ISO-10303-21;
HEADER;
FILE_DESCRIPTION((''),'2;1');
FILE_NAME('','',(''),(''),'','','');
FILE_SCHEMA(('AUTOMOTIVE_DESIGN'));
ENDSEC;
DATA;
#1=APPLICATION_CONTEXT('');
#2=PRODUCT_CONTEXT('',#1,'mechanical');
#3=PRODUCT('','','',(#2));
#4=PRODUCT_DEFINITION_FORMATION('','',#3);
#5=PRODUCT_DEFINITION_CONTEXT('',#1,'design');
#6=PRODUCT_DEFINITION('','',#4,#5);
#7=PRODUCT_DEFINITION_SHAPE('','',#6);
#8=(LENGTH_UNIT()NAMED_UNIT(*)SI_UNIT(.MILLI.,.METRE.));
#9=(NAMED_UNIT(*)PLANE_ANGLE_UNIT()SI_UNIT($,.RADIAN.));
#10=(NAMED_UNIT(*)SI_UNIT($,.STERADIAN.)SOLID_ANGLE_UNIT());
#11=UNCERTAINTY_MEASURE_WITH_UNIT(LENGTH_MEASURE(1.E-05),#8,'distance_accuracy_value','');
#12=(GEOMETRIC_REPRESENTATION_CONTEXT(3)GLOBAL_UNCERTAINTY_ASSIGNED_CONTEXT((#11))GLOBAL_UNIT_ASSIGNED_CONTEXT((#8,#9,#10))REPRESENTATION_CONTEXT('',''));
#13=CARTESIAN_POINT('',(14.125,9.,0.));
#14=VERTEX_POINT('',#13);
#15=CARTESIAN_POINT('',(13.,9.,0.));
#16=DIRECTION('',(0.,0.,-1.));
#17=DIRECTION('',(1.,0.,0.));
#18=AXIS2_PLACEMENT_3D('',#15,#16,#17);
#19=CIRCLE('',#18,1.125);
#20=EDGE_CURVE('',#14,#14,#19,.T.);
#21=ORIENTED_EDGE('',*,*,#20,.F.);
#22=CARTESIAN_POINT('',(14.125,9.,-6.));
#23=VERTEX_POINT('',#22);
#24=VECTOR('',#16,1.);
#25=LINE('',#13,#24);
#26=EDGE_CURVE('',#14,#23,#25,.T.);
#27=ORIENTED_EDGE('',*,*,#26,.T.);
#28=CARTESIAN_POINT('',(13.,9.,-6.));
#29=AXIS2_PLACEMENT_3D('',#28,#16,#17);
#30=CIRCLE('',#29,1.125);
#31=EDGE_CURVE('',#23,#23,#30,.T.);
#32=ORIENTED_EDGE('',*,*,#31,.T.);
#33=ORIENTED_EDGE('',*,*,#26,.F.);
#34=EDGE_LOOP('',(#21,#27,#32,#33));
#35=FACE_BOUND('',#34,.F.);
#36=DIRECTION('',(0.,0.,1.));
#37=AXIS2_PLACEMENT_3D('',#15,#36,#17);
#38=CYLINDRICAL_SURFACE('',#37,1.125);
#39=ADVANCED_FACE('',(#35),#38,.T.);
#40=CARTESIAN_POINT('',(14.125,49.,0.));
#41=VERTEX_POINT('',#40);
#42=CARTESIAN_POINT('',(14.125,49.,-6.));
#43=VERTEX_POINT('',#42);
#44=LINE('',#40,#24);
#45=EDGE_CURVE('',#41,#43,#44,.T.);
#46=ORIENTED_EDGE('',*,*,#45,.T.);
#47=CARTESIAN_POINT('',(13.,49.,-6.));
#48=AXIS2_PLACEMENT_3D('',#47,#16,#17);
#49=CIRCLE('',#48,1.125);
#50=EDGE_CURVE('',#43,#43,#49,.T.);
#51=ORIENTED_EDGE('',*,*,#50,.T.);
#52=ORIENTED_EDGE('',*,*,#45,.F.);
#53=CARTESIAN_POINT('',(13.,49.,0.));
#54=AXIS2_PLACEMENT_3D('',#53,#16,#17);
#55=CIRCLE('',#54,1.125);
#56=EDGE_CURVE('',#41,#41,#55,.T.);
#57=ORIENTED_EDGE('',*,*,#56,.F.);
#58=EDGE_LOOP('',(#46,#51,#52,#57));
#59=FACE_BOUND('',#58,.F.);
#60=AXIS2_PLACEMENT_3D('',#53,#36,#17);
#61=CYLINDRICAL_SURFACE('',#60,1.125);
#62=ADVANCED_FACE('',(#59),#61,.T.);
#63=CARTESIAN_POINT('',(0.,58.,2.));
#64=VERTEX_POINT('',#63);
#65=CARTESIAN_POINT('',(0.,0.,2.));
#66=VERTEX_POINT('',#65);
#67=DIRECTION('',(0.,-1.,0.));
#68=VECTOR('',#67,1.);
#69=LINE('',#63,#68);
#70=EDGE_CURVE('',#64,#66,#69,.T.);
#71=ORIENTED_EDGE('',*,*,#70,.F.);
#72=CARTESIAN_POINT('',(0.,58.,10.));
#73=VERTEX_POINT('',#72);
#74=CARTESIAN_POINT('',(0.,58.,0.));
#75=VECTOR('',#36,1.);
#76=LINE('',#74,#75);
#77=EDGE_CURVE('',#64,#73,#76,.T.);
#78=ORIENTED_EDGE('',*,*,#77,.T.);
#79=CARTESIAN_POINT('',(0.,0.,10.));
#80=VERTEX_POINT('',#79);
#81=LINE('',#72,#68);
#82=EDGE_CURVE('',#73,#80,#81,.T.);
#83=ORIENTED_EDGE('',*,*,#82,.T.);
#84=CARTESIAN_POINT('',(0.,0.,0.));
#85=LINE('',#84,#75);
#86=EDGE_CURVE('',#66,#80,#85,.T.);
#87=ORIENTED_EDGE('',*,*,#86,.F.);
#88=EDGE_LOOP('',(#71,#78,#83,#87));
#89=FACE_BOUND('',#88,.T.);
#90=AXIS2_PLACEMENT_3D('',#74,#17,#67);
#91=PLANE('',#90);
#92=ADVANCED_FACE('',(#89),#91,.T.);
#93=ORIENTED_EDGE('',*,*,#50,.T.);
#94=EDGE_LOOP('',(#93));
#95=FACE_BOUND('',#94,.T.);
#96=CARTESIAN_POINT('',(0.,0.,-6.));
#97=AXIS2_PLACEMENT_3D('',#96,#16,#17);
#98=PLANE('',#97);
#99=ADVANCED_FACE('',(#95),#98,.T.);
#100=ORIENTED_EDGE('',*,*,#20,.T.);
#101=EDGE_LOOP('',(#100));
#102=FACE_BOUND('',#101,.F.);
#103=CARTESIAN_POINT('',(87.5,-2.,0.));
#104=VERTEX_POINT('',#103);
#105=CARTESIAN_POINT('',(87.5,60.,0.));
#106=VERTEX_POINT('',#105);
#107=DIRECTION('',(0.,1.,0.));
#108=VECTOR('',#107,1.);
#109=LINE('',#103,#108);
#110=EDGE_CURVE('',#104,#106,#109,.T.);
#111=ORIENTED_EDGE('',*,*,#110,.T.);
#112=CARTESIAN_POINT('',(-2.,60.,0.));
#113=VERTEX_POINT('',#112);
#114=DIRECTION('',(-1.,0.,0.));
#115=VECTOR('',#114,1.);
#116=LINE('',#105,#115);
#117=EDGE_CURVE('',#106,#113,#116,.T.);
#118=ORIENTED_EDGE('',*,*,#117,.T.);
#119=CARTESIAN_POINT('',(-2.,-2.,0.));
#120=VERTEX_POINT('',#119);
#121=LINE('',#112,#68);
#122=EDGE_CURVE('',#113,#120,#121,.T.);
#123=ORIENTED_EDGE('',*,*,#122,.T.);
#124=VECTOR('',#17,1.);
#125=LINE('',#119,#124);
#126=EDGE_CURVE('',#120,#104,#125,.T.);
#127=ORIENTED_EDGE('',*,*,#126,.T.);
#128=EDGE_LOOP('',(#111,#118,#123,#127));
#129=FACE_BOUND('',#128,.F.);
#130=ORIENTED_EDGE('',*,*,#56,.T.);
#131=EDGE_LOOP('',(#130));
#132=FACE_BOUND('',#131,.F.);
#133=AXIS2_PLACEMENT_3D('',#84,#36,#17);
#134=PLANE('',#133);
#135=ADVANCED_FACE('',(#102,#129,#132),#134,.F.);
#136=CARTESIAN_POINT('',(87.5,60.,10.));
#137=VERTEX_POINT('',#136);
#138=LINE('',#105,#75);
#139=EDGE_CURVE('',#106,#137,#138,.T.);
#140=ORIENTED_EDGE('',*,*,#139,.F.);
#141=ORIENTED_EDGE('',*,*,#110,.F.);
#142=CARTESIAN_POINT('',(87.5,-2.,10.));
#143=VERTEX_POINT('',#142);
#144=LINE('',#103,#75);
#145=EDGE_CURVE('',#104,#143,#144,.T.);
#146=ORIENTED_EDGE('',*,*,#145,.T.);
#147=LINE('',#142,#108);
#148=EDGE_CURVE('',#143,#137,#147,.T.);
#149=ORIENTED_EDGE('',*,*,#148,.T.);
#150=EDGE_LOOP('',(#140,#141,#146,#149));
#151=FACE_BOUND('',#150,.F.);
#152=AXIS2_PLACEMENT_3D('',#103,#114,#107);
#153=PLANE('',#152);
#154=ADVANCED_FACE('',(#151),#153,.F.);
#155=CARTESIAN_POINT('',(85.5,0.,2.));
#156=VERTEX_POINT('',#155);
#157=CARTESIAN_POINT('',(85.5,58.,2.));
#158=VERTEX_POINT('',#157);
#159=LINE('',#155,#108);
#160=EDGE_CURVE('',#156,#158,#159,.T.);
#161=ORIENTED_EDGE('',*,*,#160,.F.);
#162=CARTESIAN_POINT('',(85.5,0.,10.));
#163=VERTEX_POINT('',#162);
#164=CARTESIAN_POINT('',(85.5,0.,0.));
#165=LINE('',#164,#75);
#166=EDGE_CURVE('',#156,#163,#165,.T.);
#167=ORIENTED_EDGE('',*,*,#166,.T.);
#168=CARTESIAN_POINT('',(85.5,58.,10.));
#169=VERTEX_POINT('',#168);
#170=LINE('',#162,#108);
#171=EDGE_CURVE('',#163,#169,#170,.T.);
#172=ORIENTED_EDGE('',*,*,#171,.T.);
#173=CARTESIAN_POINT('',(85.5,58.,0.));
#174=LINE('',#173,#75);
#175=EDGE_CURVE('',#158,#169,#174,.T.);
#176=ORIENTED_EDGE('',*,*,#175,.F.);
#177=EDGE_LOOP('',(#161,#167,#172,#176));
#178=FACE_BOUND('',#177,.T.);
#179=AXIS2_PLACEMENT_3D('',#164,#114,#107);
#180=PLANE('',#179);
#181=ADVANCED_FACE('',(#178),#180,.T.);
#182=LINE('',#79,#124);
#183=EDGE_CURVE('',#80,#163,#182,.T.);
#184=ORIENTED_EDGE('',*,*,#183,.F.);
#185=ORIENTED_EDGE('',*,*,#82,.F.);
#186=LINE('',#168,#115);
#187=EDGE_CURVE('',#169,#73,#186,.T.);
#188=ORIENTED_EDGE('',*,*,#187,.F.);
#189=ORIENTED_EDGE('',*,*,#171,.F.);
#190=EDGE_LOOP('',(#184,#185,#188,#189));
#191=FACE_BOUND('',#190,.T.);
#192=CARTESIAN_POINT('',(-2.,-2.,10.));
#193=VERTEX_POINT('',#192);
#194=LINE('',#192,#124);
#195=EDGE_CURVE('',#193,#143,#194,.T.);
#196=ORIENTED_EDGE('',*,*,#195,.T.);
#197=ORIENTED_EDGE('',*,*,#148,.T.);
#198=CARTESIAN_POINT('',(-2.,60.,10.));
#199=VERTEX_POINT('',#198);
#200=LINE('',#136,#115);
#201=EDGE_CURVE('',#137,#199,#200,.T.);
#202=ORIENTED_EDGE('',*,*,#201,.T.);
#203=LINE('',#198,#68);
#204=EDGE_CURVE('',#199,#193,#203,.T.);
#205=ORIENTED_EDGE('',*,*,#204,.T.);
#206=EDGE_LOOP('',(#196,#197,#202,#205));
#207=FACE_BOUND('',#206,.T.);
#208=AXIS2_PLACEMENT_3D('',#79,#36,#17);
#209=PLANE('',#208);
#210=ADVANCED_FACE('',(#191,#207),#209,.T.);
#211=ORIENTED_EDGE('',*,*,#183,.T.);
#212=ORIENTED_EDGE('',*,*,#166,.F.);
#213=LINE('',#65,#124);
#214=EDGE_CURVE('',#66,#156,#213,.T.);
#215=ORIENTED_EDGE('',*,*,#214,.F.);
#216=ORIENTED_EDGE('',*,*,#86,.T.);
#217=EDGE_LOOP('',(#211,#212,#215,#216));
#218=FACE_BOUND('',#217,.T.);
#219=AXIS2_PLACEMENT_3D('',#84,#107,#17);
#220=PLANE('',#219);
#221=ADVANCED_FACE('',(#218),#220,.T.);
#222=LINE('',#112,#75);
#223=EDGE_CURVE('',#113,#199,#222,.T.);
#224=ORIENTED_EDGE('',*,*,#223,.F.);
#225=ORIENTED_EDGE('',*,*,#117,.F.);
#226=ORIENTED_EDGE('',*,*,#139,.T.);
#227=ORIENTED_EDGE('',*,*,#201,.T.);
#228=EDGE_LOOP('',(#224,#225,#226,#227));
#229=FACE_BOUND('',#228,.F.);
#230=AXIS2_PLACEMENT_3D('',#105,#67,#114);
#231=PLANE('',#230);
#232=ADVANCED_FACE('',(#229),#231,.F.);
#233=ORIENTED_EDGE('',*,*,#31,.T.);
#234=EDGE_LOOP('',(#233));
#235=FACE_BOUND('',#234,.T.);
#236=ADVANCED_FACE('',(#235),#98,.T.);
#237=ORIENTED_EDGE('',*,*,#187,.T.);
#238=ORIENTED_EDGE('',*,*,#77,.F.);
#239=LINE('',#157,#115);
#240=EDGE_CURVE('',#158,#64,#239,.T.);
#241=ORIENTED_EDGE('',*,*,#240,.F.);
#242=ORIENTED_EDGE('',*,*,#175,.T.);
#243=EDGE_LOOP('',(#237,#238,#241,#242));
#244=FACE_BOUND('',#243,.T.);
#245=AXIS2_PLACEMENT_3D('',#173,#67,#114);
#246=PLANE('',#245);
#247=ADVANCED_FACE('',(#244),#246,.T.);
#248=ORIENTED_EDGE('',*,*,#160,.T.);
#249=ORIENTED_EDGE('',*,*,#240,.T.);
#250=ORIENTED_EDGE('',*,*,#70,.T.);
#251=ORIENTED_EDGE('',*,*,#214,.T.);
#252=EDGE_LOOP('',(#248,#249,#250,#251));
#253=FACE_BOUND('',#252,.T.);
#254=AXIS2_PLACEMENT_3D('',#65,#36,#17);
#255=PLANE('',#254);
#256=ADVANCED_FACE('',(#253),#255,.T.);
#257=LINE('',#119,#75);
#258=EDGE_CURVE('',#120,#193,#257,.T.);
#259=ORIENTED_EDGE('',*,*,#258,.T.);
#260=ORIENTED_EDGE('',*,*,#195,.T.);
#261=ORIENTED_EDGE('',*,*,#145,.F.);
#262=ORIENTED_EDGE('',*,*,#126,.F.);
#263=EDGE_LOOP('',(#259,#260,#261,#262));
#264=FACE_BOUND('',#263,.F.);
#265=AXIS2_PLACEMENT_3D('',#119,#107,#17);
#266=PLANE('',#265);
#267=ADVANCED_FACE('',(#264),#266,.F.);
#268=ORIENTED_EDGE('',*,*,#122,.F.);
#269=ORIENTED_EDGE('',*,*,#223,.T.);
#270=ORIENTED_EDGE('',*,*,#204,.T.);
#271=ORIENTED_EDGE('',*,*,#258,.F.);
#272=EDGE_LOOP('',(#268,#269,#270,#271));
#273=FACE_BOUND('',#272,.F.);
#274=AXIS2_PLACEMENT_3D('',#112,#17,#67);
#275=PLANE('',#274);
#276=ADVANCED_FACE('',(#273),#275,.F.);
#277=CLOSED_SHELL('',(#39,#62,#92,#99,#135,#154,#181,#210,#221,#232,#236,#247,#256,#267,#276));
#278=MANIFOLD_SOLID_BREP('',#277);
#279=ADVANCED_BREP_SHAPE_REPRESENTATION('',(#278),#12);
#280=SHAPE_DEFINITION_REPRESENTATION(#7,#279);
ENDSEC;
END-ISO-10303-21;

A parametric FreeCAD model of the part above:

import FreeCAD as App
import Part
import Sketcher

V = App.Vector
Q = App.Units.Quantity


def add_polygon(sketch, points):
    """Adds a closed chain of lines whose ends are joined by coincident constraints."""
    first, n = sketch.GeometryCount, len(points)
    for a, b in zip(points, points[1:] + points[:1]):
        sketch.addGeometry(Part.LineSegment(App.Vector(*a, 0), App.Vector(*b, 0)), False)
    for i in range(n):
        sketch.addConstraint(Sketcher.Constraint("Coincident", first + i, 2, first + (i + 1) % n, 1))

doc = App.newDocument("Part")
body = doc.addObject("PartDesign::Body", "Body")

sketch1 = body.newObject("Sketcher::SketchObject", "Sketch")
sketch1.AttachmentSupport = (doc.getObject("XY_Plane"), [""])
sketch1.MapMode = "FlatFace"
add_polygon(sketch1, [(-2, -2), (88, -2), (88, 60), (-2, 60)])
add_polygon(sketch1, [(86, 0), (0, 0), (0, 58), (86, 58)])
sketch1.addConstraint(Sketcher.Constraint("Horizontal", 0))
sketch1.addConstraint(Sketcher.Constraint("Vertical", 1))
sketch1.addConstraint(Sketcher.Constraint("Horizontal", 2))
sketch1.addConstraint(Sketcher.Constraint("Vertical", 3))
sketch1.addConstraint(Sketcher.Constraint("Horizontal", 4))
sketch1.addConstraint(Sketcher.Constraint("Vertical", 5))
sketch1.addConstraint(Sketcher.Constraint("Horizontal", 6))
sketch1.addConstraint(Sketcher.Constraint("Vertical", 7))
sketch1.addConstraint(Sketcher.Constraint("Coincident", 4, 2, -1, 1))
sketch1.addConstraint(Sketcher.Constraint("DistanceY", 5, 1, 5, 2, Q("58 mm")))
sketch1.addConstraint(Sketcher.Constraint("DistanceX", 4, 2, 4, 1, Q("85.5 mm")))
sketch1.addConstraint(Sketcher.Constraint("DistanceY", 0, 2, -1, 1, Q("2 mm")))
sketch1.addConstraint(Sketcher.Constraint("DistanceX", 2, 2, -1, 1, Q("2 mm")))
sketch1.addConstraint(Sketcher.Constraint("DistanceY", 5, 2, 2, 2, Q("2 mm")))
sketch1.addConstraint(Sketcher.Constraint("DistanceX", 6, 2, 1, 2, Q("2 mm")))
pad1 = body.newObject("PartDesign::Pad", "Pad")
pad1.Profile = sketch1
pad1.Length = 10

sketch2 = body.newObject("Sketcher::SketchObject", "Sketch001")
sketch2.AttachmentSupport = (doc.getObject("XY_Plane"), [""])
sketch2.MapMode = "FlatFace"
add_polygon(sketch2, [(0, 58), (0, 0), (86, 0), (86, 58)])
sketch2.addConstraint(Sketcher.Constraint("Vertical", 0))
sketch2.addConstraint(Sketcher.Constraint("Horizontal", 1))
sketch2.addConstraint(Sketcher.Constraint("Vertical", 2))
sketch2.addConstraint(Sketcher.Constraint("Horizontal", 3))
sketch2.addConstraint(Sketcher.Constraint("Coincident", 0, 2, -1, 1))
sketch2.addConstraint(Sketcher.Constraint("DistanceY", 0, 2, 0, 1, Q("58 mm")))
sketch2.addConstraint(Sketcher.Constraint("DistanceX", 1, 1, 1, 2, Q("85.5 mm")))
pad2 = body.newObject("PartDesign::Pad", "Pad001")
pad2.Profile = sketch2
pad2.Length = 2

sketch3 = body.newObject("Sketcher::SketchObject", "Sketch002")
sketch3.AttachmentSupport = (doc.getObject("XY_Plane"), [""])
sketch3.MapMode = "FlatFace"
sketch3.addGeometry(Part.Circle(V(13, 9, 0), V(0, 0, 1), 1.1), False)
sketch3.addGeometry(Part.Circle(V(13, 49, 0), V(0, 0, 1), 1.1), False)
sketch3.addConstraint(Sketcher.Constraint("Equal", 0, 1))
sketch3.addConstraint(Sketcher.Constraint("Vertical", 0, 3, 1, 3))
sketch3.addConstraint(Sketcher.Constraint("Diameter", 0, Q("2.25 mm")))
sketch3.addConstraint(Sketcher.Constraint("DistanceX", -1, 1, 0, 3, Q("13 mm")))
sketch3.addConstraint(Sketcher.Constraint("DistanceY", -1, 1, 0, 3, Q("9 mm")))
sketch3.addConstraint(Sketcher.Constraint("DistanceY", -1, 1, 1, 3, Q("49 mm")))
pad3 = body.newObject("PartDesign::Pad", "Pad002")
pad3.Profile = sketch3
pad3.Length = 6
pad3.Reversed = True

doc.recompute()
